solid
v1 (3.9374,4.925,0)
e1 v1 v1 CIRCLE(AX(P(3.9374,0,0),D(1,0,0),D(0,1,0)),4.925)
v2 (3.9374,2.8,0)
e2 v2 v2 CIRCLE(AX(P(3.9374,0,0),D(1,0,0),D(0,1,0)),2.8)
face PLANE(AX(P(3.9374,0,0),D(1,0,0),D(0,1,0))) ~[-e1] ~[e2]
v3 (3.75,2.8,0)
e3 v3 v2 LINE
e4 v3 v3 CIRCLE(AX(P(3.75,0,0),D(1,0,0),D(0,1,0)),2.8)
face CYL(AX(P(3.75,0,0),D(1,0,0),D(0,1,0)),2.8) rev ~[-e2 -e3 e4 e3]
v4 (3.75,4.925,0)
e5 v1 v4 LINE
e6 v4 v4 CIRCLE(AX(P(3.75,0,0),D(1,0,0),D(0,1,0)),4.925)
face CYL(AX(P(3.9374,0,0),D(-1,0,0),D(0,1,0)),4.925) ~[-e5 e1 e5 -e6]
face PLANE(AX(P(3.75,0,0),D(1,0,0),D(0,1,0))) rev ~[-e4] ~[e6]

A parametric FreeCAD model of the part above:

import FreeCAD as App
import Part
import Sketcher
from FreeCAD import Vector


def add_polygon(sketch, points):
    """Adds a closed chain of lines whose ends are joined by coincident constraints."""
    first, n = sketch.GeometryCount, len(points)
    for a, b in zip(points, points[1:] + points[:1]):
        sketch.addGeometry(Part.LineSegment(App.Vector(*a, 0), App.Vector(*b, 0)), False)
    for i in range(n):
        sketch.addConstraint(Sketcher.Constraint("Coincident", first + i, 2, first + (i + 1) % n, 1))

doc = App.newDocument("Part")
body = doc.addObject("PartDesign::Body", "Body")

sketch1 = doc.addObject("Sketcher::SketchObject", "Sketch")
body.addObject(sketch1)
sketch1.AttachmentSupport = (doc.XY_Plane, [""])
sketch1.MapMode = "FlatFace"
add_polygon(sketch1, [(3.75, 4.925), (3.75, 2.8), (3.9374, 2.8), (3.9374, 4.925)])
sketch1.addConstraint([
    Sketcher.Constraint("Vertical", 0),
    Sketcher.Constraint("Horizontal", 1),
    Sketcher.Constraint("Vertical", 2),
    Sketcher.Constraint("Horizontal", 3),
    Sketcher.Constraint("DistanceY", -1, 1, 0, 2, 2.8),
    Sketcher.Constraint("DistanceY", 0, 2, 0, 1, 2.125),
    Sketcher.Constraint("DistanceX", -1, 1, 0, 2, 3.75),
    Sketcher.Constraint("DistanceX", 1, 1, 1, 2, 0.1874),
])
revolution = doc.addObject("PartDesign::Revolution", "Revolution")
body.addObject(revolution)
revolution.Profile = sketch1
revolution.ReferenceAxis = (sketch1, ["H_Axis"])
revolution.Angle = 360

doc.recompute()
